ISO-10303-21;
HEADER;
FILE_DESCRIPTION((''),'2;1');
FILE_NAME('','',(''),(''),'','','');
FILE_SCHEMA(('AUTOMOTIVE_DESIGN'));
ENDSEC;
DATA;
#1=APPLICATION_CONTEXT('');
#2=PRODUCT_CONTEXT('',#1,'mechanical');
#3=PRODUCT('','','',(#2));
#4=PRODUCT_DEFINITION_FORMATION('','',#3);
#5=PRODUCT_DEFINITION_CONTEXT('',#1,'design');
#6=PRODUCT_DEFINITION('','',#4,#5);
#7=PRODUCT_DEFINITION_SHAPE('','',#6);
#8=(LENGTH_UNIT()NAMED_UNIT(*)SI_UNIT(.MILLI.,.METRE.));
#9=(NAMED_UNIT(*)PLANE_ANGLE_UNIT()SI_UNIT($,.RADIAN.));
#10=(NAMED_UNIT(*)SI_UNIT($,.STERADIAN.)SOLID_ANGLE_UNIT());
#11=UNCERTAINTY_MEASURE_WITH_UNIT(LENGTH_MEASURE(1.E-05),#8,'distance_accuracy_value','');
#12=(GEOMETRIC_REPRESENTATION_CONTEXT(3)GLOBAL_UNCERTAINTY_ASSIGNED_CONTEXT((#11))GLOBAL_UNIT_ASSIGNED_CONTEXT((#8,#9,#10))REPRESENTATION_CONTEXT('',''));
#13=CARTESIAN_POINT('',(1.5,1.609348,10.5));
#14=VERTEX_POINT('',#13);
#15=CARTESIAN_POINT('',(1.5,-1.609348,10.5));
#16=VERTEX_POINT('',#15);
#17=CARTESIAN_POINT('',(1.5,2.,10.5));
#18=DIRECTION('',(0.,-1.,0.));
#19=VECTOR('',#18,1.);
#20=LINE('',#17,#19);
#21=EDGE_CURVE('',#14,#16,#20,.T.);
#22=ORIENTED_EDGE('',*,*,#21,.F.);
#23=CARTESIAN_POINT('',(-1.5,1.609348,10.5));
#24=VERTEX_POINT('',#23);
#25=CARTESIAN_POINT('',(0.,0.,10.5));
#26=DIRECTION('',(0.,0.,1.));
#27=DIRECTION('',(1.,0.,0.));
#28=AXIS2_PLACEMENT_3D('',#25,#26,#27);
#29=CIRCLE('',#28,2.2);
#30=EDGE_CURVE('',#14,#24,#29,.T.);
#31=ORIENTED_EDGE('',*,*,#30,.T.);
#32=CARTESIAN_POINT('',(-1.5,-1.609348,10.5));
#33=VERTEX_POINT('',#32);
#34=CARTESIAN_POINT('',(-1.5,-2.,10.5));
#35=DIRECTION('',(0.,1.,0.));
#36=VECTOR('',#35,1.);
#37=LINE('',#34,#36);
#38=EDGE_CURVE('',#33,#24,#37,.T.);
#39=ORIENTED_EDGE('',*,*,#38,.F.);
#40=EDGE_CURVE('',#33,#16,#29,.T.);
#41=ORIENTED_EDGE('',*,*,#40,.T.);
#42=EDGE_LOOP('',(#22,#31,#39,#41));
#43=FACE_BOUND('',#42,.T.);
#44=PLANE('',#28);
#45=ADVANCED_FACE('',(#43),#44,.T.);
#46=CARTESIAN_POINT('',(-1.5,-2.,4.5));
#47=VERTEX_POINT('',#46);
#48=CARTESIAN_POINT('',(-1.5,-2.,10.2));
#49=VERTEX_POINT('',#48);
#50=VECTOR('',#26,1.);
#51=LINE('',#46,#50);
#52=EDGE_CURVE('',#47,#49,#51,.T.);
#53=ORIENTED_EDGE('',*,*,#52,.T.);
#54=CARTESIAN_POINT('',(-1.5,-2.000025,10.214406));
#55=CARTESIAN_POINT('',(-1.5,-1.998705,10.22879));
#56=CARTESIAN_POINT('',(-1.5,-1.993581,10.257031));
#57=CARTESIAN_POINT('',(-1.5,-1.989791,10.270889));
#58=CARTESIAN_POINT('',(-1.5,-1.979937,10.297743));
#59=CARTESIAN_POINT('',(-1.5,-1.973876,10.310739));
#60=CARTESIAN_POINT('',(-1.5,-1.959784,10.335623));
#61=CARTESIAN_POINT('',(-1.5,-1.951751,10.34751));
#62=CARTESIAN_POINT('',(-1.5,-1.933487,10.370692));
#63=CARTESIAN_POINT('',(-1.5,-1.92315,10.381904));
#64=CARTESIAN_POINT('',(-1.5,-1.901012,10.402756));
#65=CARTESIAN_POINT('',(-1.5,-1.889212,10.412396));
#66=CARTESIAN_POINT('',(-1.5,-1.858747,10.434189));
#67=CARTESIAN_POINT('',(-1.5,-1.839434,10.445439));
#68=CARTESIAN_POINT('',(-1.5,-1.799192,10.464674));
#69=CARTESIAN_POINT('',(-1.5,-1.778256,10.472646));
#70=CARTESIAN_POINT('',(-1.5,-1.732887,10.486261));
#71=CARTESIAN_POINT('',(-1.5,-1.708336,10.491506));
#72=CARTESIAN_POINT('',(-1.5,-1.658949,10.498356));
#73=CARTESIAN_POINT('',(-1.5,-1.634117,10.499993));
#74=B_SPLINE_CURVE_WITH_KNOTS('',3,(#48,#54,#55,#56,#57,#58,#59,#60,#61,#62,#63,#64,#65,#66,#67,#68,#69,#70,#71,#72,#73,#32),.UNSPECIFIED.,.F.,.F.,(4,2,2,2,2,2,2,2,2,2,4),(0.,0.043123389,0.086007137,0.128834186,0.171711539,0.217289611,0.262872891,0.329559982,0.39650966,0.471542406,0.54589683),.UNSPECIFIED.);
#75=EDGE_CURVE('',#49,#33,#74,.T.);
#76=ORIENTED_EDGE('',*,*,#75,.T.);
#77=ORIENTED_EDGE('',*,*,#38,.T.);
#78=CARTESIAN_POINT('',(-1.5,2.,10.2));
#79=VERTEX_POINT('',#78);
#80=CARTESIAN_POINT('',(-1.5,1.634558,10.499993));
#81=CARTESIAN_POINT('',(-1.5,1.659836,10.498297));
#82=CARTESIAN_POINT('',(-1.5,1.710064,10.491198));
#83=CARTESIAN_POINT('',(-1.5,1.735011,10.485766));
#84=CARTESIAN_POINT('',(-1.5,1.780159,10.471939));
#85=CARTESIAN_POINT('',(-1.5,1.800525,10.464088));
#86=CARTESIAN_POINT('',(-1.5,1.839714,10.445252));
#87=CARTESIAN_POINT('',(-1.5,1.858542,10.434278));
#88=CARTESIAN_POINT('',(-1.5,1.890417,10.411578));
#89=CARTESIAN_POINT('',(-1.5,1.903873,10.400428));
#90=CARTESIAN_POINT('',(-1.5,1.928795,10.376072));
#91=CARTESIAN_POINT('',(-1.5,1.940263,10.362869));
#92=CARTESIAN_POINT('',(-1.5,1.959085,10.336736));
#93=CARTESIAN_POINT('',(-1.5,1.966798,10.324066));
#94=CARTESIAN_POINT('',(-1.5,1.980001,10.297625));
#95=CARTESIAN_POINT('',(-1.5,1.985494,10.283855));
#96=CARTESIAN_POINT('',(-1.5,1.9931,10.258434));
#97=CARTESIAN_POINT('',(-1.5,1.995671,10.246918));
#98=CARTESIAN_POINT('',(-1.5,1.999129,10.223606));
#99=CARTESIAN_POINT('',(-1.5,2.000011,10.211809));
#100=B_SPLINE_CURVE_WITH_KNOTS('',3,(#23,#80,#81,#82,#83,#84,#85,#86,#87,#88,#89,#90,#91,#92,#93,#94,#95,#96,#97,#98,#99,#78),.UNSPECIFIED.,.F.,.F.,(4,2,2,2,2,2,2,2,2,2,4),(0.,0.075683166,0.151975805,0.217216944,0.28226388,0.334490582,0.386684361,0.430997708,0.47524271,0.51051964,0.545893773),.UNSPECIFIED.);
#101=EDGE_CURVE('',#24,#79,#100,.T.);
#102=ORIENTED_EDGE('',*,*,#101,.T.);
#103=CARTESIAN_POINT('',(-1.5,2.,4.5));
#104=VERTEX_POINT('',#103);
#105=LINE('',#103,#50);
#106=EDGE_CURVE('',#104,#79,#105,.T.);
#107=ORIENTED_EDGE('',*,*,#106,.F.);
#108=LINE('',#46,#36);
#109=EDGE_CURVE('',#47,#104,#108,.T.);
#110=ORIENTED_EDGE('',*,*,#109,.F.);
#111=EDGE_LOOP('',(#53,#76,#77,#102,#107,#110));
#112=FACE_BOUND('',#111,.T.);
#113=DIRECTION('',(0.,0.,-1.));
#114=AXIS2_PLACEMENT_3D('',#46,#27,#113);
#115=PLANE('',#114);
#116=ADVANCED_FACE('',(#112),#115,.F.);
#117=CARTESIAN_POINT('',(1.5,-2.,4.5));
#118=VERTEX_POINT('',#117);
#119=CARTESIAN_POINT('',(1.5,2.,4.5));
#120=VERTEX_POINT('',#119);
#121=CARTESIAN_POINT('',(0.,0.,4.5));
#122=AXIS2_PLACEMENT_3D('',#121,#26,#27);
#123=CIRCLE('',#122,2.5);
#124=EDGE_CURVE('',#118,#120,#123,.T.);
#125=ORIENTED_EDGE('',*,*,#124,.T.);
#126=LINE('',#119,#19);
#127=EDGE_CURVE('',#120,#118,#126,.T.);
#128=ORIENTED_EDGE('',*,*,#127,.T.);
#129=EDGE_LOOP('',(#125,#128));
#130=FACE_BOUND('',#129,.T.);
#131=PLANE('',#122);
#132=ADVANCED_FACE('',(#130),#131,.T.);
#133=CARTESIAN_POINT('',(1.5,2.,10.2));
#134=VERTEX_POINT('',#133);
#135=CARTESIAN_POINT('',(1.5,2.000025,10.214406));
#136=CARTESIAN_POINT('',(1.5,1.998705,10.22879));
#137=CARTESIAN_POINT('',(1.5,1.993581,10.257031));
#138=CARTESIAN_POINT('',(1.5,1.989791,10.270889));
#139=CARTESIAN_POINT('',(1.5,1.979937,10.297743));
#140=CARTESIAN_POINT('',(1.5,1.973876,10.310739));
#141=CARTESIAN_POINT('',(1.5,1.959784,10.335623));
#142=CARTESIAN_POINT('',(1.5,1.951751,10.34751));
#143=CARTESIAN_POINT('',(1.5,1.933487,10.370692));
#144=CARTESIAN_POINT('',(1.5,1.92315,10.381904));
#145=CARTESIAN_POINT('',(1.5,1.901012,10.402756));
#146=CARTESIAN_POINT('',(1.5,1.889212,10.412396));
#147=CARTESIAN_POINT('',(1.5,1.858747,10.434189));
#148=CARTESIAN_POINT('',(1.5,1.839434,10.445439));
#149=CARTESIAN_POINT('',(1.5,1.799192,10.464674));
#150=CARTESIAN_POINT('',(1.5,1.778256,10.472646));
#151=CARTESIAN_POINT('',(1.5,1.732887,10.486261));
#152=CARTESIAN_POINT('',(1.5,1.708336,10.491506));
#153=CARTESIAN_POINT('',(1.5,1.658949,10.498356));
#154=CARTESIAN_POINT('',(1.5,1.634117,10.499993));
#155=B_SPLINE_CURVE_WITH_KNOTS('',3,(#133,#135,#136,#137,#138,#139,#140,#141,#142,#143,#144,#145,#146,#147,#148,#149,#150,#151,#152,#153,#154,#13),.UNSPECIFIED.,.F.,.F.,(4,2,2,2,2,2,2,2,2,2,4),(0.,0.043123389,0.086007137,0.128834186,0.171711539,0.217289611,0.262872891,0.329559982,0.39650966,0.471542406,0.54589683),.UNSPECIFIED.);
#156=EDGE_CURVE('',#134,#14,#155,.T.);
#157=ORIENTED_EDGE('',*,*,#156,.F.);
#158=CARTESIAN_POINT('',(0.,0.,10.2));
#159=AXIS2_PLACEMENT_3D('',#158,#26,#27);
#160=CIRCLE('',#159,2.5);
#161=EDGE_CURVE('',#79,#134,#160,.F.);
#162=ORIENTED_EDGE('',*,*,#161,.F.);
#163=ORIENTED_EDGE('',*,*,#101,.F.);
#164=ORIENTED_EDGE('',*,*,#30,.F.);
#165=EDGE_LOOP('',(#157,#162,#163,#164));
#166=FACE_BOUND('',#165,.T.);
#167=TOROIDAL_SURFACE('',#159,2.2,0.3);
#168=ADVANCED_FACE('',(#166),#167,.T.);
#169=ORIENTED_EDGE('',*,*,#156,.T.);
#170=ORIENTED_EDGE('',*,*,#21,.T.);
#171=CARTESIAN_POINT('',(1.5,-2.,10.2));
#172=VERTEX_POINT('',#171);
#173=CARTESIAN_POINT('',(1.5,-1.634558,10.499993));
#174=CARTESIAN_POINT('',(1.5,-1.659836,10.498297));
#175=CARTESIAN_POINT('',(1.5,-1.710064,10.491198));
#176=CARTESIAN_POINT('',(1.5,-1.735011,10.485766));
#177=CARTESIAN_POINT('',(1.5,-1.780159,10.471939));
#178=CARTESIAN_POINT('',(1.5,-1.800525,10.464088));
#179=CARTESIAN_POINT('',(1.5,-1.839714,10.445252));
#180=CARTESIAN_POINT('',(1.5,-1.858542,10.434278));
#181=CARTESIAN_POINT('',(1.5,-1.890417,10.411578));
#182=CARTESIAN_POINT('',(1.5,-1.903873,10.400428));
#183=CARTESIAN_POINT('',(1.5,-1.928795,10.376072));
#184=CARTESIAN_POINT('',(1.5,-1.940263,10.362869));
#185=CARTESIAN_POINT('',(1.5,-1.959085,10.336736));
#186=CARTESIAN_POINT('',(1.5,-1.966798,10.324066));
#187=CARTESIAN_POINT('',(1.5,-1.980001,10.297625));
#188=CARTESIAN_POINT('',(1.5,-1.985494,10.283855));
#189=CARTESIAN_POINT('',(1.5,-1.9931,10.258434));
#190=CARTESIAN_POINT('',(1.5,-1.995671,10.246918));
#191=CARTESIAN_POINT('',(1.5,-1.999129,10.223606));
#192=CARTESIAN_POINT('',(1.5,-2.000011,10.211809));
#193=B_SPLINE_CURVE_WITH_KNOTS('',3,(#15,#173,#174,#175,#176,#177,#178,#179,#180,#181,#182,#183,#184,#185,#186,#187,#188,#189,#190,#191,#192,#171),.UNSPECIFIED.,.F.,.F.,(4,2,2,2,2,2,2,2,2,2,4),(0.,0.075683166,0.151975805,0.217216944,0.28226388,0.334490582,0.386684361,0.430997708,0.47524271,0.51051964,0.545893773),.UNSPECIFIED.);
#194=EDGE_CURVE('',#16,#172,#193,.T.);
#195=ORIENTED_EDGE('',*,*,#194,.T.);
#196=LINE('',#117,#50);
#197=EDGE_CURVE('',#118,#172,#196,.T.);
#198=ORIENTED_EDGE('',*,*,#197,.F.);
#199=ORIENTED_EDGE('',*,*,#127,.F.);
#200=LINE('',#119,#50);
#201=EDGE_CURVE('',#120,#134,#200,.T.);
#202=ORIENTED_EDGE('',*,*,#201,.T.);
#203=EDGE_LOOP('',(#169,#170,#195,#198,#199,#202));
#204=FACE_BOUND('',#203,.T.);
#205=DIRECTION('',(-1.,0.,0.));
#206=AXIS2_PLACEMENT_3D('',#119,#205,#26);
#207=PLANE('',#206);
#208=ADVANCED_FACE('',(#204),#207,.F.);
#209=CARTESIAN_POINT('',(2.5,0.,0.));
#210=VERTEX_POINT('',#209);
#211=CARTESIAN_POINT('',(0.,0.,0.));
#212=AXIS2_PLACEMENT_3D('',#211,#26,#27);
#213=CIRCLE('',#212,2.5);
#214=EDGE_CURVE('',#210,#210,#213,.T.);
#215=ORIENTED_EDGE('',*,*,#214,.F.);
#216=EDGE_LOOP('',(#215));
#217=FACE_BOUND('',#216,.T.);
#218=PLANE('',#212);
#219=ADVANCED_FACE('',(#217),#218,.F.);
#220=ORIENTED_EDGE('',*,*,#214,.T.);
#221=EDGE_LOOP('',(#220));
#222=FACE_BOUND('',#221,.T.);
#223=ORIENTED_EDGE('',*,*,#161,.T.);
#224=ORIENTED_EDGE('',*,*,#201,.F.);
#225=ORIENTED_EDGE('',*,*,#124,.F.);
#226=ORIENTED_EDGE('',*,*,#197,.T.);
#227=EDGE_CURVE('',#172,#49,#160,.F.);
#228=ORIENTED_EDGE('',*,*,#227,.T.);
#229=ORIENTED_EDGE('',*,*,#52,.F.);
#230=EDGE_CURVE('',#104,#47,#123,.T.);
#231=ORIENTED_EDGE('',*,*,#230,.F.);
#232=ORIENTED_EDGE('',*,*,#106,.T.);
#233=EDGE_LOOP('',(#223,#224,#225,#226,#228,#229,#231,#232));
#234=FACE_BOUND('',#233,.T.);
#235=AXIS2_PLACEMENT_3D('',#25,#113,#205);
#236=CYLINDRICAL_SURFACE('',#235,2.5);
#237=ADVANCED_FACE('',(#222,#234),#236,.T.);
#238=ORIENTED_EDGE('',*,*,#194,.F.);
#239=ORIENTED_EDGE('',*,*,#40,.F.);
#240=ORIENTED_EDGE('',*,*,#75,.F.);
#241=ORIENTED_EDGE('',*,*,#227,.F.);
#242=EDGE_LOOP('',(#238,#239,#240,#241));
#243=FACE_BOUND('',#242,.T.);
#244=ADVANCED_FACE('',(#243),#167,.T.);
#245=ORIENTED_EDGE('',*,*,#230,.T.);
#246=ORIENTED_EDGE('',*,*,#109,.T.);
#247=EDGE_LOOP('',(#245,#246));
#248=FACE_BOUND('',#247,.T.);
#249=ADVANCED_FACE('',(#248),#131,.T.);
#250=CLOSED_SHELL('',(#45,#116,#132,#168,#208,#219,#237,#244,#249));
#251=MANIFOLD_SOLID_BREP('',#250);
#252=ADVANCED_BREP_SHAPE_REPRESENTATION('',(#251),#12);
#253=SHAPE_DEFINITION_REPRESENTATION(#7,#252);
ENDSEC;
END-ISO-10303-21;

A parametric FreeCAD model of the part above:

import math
import FreeCAD as App
import Part
import Sketcher
from FreeCAD import Vector
Q = App.Units.Quantity


def edges_at(feature, points):
    """Names of the edges that pass closest to the given points."""
    edges = feature.Shape.Edges
    near = lambda p: min(range(len(edges)), key=lambda i: edges[i].distToShape(Part.Vertex(*p))[0])
    return sorted({f"Edge{near(p) + 1}" for p in points})

doc = App.newDocument("Part")
body = doc.addObject("PartDesign::Body", "Body")

# Sketch on XY plane
sketch1 = body.newObject("Sketcher::SketchObject", "Sketch")
sketch1.AttachmentSupport = (doc.getObject("XY_Plane"), [""])
sketch1.MapMode = "FlatFace"
sketch1.addGeometry(Part.Circle(Vector(0, 0, 0), Vector(0, 0, 1), 2.5), False)
sketch1.addConstraint(Sketcher.Constraint("Coincident", 0, 3, -1, 1))
sketch1.addConstraint(Sketcher.Constraint("Diameter", 0, Q("5 mm")))
pad1 = body.newObject("PartDesign::Pad", "Pad")
pad1.Profile = sketch1
pad1.Length = 10.5

# Sketch on XY plane
sketch2 = body.newObject("Sketcher::SketchObject", "Sketch001")
sketch2.AttachmentSupport = (doc.getObject("XY_Plane"), [""])
sketch2.MapMode = "FlatFace"
sketch2.AttachmentOffset = App.Placement(Vector(0, 0, 4.5), App.Rotation())
sketch2.addGeometry(Part.LineSegment(Vector(1.5, 2, 0), Vector(1.5, -2, 0)), False)
sketch2.addGeometry(Part.ArcOfCircle(Part.Circle(Vector(0, 0, 0), Vector(0, 0, 1), 2.5), math.radians(-53), math.radians(53)), False)
sketch2.addGeometry(Part.LineSegment(Vector(-1.5, -2, 0), Vector(-1.5, 2, 0)), False)
sketch2.addGeometry(Part.ArcOfCircle(Part.Circle(Vector(0, 0, 0), Vector(0, 0, 1), 2.5), math.radians(127), math.radians(233)), False)
sketch2.addConstraint(Sketcher.Constraint("Coincident", 0, 1, 1, 2))
sketch2.addConstraint(Sketcher.Constraint("Coincident", 1, 1, 0, 2))
sketch2.addConstraint(Sketcher.Constraint("Coincident", 2, 1, 3, 2))
sketch2.addConstraint(Sketcher.Constraint("Coincident", 3, 1, 2, 2))
sketch2.addConstraint(Sketcher.Constraint("Vertical", 0))
sketch2.addConstraint(Sketcher.Constraint("Vertical", 2))
sketch2.addConstraint(Sketcher.Constraint("Coincident", 1, 3, -1, 1))
sketch2.addConstraint(Sketcher.Constraint("Coincident", 3, 3, -1, 1))
sketch2.addConstraint(Sketcher.Constraint("Equal", 1, 3))
sketch2.addConstraint(Sketcher.Constraint("Horizontal", 1, 1, 2, 1))
sketch2.addConstraint(Sketcher.Constraint("Radius", 1, Q("2.5 mm")))
sketch2.addConstraint(Sketcher.Constraint("DistanceY", 0, 2, 0, 1, Q("4 mm")))
pocket1 = body.newObject("PartDesign::Pocket", "Pocket")
pocket1.Profile = sketch2
pocket1.Length = 6
pocket1.Reversed = True
doc.recompute()

fillet = body.newObject("PartDesign::Fillet", "Fillet")
fillet.Base = (pocket1, edges_at(pocket1, [(0, 2.5, 10.5), (0, -2.5, 10.5)]))
fillet.Radius = 0.3

doc.recompute()
